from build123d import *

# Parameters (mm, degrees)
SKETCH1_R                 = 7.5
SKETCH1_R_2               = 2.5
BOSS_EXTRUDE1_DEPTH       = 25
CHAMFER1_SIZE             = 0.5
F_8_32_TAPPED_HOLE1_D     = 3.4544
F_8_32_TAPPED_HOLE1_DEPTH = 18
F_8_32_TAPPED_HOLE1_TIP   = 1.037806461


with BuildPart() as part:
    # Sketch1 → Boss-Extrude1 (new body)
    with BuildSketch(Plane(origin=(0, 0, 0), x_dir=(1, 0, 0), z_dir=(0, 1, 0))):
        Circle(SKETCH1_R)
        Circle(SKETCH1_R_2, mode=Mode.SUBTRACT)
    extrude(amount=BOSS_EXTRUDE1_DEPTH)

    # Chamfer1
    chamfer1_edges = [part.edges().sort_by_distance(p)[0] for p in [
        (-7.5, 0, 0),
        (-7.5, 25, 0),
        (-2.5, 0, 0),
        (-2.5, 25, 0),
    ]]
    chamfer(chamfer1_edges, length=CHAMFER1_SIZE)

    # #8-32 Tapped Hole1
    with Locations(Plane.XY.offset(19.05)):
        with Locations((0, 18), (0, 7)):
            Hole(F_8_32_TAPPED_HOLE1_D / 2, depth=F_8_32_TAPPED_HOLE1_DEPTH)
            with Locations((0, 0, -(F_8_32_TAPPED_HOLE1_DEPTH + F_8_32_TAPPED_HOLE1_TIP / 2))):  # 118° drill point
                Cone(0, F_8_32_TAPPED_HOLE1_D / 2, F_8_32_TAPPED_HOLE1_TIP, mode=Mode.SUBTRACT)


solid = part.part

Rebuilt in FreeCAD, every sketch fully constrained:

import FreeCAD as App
import Part
import Sketcher
from FreeCAD import Vector


def edges_at(feature, points):
    """Names of the edges that pass closest to the given points."""
    edges = feature.Shape.Edges
    near = lambda p: min(range(len(edges)), key=lambda i: edges[i].distToShape(Part.Vertex(*p))[0])
    return sorted({f"Edge{near(p) + 1}" for p in points})

doc = App.newDocument("Part")
body = doc.addObject("PartDesign::Body", "Body")

# Sketch on XZ plane
sketch1 = doc.addObject("Sketcher::SketchObject", "Sketch")
body.addObject(sketch1)
sketch1.AttachmentSupport = (doc.XZ_Plane, [""])
sketch1.MapMode = "FlatFace"
sketch1.addGeometry([
    Part.Circle(Vector(0, 0, 0), Vector(0, 0, 1), 7.5),
    Part.Circle(Vector(0, 0, 0), Vector(0, 0, 1), 2.5),
], False)
sketch1.addConstraint([
    Sketcher.Constraint("Coincident", 0, 3, -1, 1),
    Sketcher.Constraint("Coincident", 1, 3, -1, 1),
    Sketcher.Constraint("Diameter", 0, 15.0),
    Sketcher.Constraint("Diameter", 1, 5.0),
])
pad1 = doc.addObject("PartDesign::Pad", "Pad")
body.addObject(pad1)
pad1.Profile = sketch1
pad1.Length = 25
pad1.Reversed = True
doc.recompute()

chamfer = doc.addObject("PartDesign::Chamfer", "Chamfer")
body.addObject(chamfer)
chamfer.Base = (pad1, edges_at(pad1, [
    (-7.5, 0, 0),
    (-7.5, 25, 0),
    (-2.5, 0, 0),
    (-2.5, 25, 0),
]))
chamfer.Size = 0.5

# Sketch on XY plane
sketch2 = doc.addObject("Sketcher::SketchObject", "Sketch001")
body.addObject(sketch2)
sketch2.AttachmentSupport = (doc.XY_Plane, [""])
sketch2.MapMode = "FlatFace"
sketch2.AttachmentOffset = App.Placement(Vector(0, 0, 19.05), App.Rotation())
sketch2.addGeometry([
    Part.Circle(Vector(0, 18, 0), Vector(0, 0, 1), 1.7),
    Part.Circle(Vector(0, 7, 0), Vector(0, 0, 1), 1.7),
], False)
sketch2.addConstraint([
    Sketcher.Constraint("Equal", 0, 1),
    Sketcher.Constraint("PointOnObject", 0, 3, -2),
    Sketcher.Constraint("PointOnObject", 1, 3, -2),
    Sketcher.Constraint("DistanceY", -1, 1, 0, 3, 18.0),
    Sketcher.Constraint("DistanceY", -1, 1, 1, 3, 7.0),
    Sketcher.Constraint("Diameter", 0, 3.4544),
])
doc.recompute()
hole = doc.addObject("PartDesign::Hole", "Hole")
body.addObject(hole)
hole.Profile = sketch2
hole.ThreadType = "None"
hole.Diameter = 3.4544
hole.DepthType = "Dimension"
hole.Depth = 18
hole.DrillPoint = "Angled"
hole.DrillPointAngle = 118

doc.recompute()
